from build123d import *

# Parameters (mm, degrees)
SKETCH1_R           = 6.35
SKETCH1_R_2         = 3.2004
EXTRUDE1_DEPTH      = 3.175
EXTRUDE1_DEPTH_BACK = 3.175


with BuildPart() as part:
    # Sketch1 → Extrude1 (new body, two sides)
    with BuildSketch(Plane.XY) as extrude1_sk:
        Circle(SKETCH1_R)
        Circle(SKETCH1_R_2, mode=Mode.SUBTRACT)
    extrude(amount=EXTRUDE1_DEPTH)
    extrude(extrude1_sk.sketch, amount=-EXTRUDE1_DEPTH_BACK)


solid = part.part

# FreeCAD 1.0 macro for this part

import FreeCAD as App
import Part
import Sketcher
Q = App.Units.Quantity

doc = App.newDocument("Part")
body = doc.addObject("PartDesign::Body", "Body")

sketch1 = doc.addObject("Sketcher::SketchObject", "Sketch")
body.addObject(sketch1)
sketch1.AttachmentSupport = (doc.XY_Plane, [""])
sketch1.MapMode = "FlatFace"
sketch1.addGeometry(Part.Circle(App.Vector(0, 0, 0), App.Vector(0, 0, 1), 6.3), False)
sketch1.addGeometry(Part.Circle(App.Vector(0, 0, 0), App.Vector(0, 0, 1), 3.2), False)
sketch1.addConstraint(Sketcher.Constraint("Coincident", 0, 3, -1, 1))
sketch1.addConstraint(Sketcher.Constraint("Coincident", 1, 3, -1, 1))
sketch1.addConstraint(Sketcher.Constraint("Diameter", 0, Q("0.5 in")))
sketch1.addConstraint(Sketcher.Constraint("Diameter", 1, Q("0.252 in")))
pad1 = doc.addObject("PartDesign::Pad", "Pad")
body.addObject(pad1)
pad1.Profile = sketch1
pad1.Type = "TwoLengths"
pad1.Length = Q("0.125 in")
pad1.Length2 = Q("0.125 in")

doc.recompute()
